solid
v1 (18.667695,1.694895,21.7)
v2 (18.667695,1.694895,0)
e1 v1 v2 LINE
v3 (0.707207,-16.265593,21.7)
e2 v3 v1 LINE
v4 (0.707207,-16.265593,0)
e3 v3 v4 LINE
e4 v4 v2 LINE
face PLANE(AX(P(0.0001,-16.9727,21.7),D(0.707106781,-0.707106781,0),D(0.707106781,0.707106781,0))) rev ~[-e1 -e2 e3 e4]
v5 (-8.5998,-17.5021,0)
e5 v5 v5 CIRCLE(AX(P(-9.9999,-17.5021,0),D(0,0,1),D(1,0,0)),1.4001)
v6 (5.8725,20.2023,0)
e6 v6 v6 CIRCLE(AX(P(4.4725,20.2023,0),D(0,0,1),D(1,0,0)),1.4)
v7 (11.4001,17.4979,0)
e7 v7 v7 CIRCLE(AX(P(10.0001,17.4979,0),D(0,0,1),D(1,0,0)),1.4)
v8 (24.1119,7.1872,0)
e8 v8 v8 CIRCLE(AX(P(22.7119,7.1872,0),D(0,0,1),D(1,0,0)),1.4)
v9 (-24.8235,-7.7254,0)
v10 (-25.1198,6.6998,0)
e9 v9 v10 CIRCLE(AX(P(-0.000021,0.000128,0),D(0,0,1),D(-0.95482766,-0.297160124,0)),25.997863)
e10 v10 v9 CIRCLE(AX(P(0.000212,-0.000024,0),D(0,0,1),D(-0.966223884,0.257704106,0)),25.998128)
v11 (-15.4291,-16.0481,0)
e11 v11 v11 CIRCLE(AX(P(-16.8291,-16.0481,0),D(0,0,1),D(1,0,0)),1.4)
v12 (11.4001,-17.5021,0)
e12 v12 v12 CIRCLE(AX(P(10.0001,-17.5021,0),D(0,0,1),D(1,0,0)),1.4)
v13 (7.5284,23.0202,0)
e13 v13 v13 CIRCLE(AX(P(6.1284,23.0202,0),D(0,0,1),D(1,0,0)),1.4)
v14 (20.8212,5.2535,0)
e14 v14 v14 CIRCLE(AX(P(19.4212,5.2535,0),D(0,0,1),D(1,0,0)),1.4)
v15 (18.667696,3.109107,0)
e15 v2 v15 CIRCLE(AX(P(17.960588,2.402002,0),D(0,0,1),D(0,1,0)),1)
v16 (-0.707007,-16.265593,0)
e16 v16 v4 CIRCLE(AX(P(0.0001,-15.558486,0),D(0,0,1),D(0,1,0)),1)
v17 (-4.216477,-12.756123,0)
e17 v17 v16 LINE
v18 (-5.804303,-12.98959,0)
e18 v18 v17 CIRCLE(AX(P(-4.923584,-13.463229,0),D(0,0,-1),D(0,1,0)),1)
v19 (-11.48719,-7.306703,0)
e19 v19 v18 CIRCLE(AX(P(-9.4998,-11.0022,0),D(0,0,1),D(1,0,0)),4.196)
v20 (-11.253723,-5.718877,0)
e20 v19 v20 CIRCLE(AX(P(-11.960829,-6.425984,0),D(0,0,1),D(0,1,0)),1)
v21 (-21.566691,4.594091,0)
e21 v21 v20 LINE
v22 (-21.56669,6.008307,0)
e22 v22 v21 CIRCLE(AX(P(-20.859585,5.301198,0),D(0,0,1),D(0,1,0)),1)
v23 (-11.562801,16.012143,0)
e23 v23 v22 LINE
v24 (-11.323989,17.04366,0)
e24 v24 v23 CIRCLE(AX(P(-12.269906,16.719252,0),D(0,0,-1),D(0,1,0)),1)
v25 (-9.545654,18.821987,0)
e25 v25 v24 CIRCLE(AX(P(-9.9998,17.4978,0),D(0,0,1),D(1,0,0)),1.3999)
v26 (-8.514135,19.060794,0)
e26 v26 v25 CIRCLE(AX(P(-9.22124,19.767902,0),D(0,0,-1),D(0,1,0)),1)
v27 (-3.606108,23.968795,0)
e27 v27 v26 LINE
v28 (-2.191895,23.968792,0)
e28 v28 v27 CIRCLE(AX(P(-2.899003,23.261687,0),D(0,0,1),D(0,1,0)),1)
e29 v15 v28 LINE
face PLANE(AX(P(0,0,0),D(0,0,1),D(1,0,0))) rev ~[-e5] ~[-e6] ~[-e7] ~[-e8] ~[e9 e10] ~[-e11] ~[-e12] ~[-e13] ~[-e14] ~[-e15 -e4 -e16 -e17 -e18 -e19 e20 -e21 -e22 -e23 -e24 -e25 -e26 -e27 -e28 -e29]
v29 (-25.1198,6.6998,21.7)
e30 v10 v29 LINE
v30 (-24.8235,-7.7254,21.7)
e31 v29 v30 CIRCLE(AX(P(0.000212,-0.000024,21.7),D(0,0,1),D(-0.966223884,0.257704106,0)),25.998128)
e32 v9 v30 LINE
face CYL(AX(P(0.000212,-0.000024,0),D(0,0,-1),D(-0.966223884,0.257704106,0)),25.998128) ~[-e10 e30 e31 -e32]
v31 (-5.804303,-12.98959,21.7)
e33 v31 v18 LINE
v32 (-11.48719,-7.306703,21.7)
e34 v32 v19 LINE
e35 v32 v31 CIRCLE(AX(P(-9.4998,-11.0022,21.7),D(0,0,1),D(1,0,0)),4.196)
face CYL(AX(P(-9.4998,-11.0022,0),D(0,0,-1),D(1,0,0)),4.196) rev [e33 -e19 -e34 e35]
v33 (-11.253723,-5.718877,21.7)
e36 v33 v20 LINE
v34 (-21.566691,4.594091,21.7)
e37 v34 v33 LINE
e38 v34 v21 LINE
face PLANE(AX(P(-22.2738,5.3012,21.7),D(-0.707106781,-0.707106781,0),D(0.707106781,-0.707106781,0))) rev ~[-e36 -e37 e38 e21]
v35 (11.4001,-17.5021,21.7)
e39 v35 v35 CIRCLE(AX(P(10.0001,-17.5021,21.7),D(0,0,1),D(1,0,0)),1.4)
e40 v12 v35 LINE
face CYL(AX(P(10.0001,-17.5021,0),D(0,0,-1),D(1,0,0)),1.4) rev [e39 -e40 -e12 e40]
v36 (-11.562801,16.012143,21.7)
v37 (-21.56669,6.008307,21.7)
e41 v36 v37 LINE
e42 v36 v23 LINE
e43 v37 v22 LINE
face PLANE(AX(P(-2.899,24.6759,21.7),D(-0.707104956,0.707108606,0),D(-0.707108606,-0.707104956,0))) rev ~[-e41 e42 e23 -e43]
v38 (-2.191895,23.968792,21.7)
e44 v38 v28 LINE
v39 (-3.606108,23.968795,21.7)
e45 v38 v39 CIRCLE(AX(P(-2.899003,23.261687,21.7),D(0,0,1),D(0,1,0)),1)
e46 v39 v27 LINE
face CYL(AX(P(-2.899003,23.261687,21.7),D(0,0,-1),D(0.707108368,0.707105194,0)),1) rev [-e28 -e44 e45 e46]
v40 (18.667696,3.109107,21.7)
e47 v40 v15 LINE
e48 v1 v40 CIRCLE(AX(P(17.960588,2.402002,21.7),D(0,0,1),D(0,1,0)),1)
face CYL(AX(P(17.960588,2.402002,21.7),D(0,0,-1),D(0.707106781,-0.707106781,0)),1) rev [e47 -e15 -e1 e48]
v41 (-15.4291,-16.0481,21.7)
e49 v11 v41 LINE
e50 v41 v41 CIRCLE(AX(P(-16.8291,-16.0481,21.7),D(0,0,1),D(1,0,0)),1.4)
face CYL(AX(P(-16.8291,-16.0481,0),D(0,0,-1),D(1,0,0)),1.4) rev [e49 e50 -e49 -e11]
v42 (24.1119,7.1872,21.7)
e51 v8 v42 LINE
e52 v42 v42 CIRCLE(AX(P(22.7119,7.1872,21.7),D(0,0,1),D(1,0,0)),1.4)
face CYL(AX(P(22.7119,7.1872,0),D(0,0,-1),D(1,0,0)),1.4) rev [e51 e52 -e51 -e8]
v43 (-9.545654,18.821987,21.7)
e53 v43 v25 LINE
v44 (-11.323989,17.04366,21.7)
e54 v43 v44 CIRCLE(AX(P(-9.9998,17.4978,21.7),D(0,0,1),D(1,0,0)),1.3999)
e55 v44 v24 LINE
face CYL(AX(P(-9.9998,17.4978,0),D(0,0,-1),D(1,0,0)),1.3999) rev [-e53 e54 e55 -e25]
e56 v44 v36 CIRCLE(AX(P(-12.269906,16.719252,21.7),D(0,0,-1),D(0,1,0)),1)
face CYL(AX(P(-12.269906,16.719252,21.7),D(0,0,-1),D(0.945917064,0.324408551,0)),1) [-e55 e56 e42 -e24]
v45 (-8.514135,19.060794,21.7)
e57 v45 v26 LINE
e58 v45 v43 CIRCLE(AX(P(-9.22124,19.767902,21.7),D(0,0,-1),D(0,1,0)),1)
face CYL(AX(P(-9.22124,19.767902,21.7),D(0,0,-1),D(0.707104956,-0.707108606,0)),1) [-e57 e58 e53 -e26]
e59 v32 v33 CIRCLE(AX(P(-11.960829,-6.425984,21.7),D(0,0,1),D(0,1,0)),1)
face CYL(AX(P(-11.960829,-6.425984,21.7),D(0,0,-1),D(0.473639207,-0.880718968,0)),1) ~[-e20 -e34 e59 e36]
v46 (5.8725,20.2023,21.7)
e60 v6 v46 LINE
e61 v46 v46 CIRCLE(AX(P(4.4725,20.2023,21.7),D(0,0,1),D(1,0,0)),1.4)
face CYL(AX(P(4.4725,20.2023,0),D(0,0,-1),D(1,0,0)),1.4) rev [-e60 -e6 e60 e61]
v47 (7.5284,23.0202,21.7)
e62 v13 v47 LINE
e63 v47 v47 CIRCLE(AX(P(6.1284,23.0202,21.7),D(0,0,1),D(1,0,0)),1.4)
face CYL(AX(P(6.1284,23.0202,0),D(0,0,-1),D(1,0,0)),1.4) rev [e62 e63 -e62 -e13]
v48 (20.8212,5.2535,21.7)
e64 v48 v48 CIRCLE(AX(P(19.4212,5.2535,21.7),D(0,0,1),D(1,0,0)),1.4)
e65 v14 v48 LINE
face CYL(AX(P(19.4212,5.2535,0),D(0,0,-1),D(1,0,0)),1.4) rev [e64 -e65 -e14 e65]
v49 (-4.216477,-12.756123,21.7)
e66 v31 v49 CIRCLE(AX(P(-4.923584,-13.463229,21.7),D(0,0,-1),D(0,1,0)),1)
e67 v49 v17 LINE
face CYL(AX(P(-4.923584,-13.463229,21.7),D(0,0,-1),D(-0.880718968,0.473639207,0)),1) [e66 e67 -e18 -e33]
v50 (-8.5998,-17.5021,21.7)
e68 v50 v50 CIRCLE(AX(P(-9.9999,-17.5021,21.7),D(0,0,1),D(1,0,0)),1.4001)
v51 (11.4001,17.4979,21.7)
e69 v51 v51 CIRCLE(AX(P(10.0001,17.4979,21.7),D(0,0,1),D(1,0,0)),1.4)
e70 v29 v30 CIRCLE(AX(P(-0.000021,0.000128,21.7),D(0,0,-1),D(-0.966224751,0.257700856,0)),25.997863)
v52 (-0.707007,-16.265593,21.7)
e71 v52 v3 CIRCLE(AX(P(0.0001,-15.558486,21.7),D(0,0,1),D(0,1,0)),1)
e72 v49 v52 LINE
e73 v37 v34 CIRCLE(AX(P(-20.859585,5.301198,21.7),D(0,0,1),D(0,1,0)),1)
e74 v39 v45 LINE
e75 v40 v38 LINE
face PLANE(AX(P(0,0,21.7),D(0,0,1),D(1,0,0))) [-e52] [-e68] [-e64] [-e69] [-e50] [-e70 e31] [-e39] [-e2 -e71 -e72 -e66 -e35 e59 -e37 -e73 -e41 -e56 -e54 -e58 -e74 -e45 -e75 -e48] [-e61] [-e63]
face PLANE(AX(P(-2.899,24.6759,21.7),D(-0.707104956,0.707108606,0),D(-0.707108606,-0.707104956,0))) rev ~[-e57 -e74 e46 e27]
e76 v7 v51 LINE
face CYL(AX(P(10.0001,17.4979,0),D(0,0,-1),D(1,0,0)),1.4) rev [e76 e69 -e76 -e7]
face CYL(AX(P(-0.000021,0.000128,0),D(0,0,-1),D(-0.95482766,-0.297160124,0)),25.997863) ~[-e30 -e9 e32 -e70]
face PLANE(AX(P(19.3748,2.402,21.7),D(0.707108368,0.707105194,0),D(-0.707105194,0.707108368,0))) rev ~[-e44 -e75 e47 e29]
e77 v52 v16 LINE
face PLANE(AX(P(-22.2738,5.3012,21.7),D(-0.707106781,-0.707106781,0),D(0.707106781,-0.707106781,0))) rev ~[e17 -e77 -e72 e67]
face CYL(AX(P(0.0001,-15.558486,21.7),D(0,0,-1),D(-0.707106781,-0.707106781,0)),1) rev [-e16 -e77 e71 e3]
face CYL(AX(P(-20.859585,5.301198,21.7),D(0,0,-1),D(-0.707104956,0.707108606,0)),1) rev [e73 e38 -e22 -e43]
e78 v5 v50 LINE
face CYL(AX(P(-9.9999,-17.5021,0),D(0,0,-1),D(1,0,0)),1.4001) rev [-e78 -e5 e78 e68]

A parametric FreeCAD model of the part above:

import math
import FreeCAD as App
import Part
import Sketcher
Q = App.Units.Quantity


def edges_at(feature, points):
    """Names of the edges that pass closest to the given points."""
    edges = feature.Shape.Edges
    near = lambda p: min(range(len(edges)), key=lambda i: edges[i].distToShape(Part.Vertex(*p))[0])
    return sorted({f"Edge{near(p) + 1}" for p in points})

doc = App.newDocument("Part")
params = doc.addObject("Spreadsheet::Sheet", "Params")
for row, (alias, value) in enumerate([
    ("sketch1_diameter", "2.8 mm"),
    ("pad1_length", "21.7 mm"),
    ("sketch2_length", "31.5 mm"),
    ("sketch2_length2", "27.4 mm"),
    ("fillet_radius", "1 mm"),
], start=1):
    params.set(f"A{row}", alias)
    params.set(f"B{row}", "=" + value)
    params.setAlias(f"B{row}", alias)

body = doc.addObject("PartDesign::Body", "Body")

# Sketch on XY plane
sketch1 = body.newObject("Sketcher::SketchObject", "Sketch")
sketch1.AttachmentSupport = (doc.getObject("XY_Plane"), [""])
sketch1.MapMode = "FlatFace"
sketch1.addGeometry([
    Part.ArcOfCircle(Part.Circle(App.Vector(0, 0, 0), App.Vector(0, 0, 1), 25.997917), math.radians(165.066056), math.radians(197.286829)),  # 0
    Part.ArcOfCircle(Part.Circle(App.Vector(0, 0, 0), App.Vector(0, 0, 1), 25.997845), math.radians(-162.713171), math.radians(165.066056)),  # 1
    Part.Circle(App.Vector(-16.8291, -16.0481, 0), App.Vector(0, 0, 1), 1.4),  # 2
    Part.Circle(App.Vector(-9.9999, -17.5021, 0), App.Vector(0, 0, 1), 1.4001),  # 3
    Part.Circle(App.Vector(-9.4998, -11.0022, 0), App.Vector(0, 0, 1), 4.196),  # 4
    Part.Circle(App.Vector(10.0001, -17.5021, 0), App.Vector(0, 0, 1), 1.4),  # 5
    Part.Circle(App.Vector(0.0001, -0.0022, 0), App.Vector(0, 0, 1), 6.7754),  # 6
    Part.Circle(App.Vector(-9.9998, 17.4978, 0), App.Vector(0, 0, 1), 1.3999),  # 7
    Part.Circle(App.Vector(19.4212, 5.2535, 0), App.Vector(0, 0, 1), 1.4),  # 8
    Part.Circle(App.Vector(22.7119, 7.1872, 0), App.Vector(0, 0, 1), 1.4),  # 9
    Part.Circle(App.Vector(10.0001, 17.4979, 0), App.Vector(0, 0, 1), 1.4),  # 10
    Part.Circle(App.Vector(4.4725, 20.2023, 0), App.Vector(0, 0, 1), 1.4),  # 11
    Part.Circle(App.Vector(6.1284, 23.0202, 0), App.Vector(0, 0, 1), 1.4),  # 12
], False)
sketch1.addConstraint([
    Sketcher.Constraint("Tangent", 0, 1, 1, 2),
    Sketcher.Constraint("Coincident", 1, 1, 0, 2),
    Sketcher.Constraint("Coincident", 0, 3, -1, 1),
    Sketcher.Constraint("Equal", 2, 3),
    Sketcher.Constraint("Equal", 3, 5),
    Sketcher.Constraint("Equal", 5, 7),
    Sketcher.Constraint("Equal", 7, 8),
    Sketcher.Constraint("Equal", 8, 9),
    Sketcher.Constraint("Equal", 9, 10),
    Sketcher.Constraint("Equal", 10, 11),
    Sketcher.Constraint("Equal", 11, 12),
    Sketcher.Constraint("Symmetric", 3, 3, 5, 3, -2),
    Sketcher.Constraint("Symmetric", 7, 3, 10, 3, -2),
    Sketcher.Constraint("PointOnObject", 6, 3, -2),
    Sketcher.Constraint("Vertical", 3, 3, 7, 3),
    Sketcher.Constraint("Diameter", 2, Q("2.8 mm")),
    Sketcher.Constraint("Diameter", 4, Q("8.392 mm")),
    Sketcher.Constraint("DistanceX", 3, 3, -1, 1, Q("10 mm")),
    Sketcher.Constraint("Radius", 0, Q("25.998 mm")),
    Sketcher.Constraint("DistanceY", 4, 3, 6, 3, Q("11 mm")),
    Sketcher.Constraint("Diameter", 6, Q("13.5508 mm")),
    Sketcher.Constraint("DistanceX", 3, 3, 4, 3, Q("0.5 mm")),
    Sketcher.Constraint("DistanceY", 3, 3, 4, 3, Q("6.5 mm")),
    Sketcher.Constraint("DistanceY", 6, 3, 7, 3, Q("17.5 mm")),
    Sketcher.Constraint("DistanceX", 0, 1, 7, 3, Q("15.12 mm")),
    Sketcher.Constraint("DistanceX", 2, 3, -1, 1, Q("16.829 mm")),
    Sketcher.Constraint("DistanceY", 2, 3, -1, 1, Q("16.048 mm")),
    Sketcher.Constraint("DistanceY", 3, 3, -1, 1, Q("17.502 mm")),
    Sketcher.Constraint("DistanceX", -1, 1, 9, 3, Q("22.712 mm")),
    Sketcher.Constraint("DistanceX", 6, 3, 8, 3, Q("19.421 mm")),
    Sketcher.Constraint("DistanceX", 11, 3, 12, 3, Q("1.656 mm")),
    Sketcher.Constraint("DistanceY", 11, 3, 12, 3, Q("2.818 mm")),
    Sketcher.Constraint("DistanceY", 9, 3, 12, 3, Q("15.833 mm")),
    Sketcher.Constraint("DistanceY", -1, 1, 8, 3, Q("5.2535 mm")),
    Sketcher.Constraint("DistanceY", -1, 1, 9, 3, Q("7.1872 mm")),
    Sketcher.Constraint("DistanceX", -1, 1, 11, 3, Q("4.4725 mm")),
    Sketcher.Constraint("DistanceX", 1, 1, -1, 1, Q("24.8235 mm")),
])
sketch1.setExpression("Constraints[15]", "Params.sketch1_diameter")
pad1 = body.newObject("PartDesign::Pad", "Pad")
pad1.Profile = sketch1
pad1.setExpression("Length", "Params.pad1_length")

# Sketch on XY plane
sketch2 = body.newObject("Sketcher::SketchObject", "Sketch001")
sketch2.AttachmentSupport = (doc.getObject("XY_Plane"), [""])
sketch2.MapMode = "FlatFace"
sketch2.AttachmentOffset = App.Placement(App.Vector(0, 0, 21.7), App.Rotation())
sketch2.addGeometry([
    Part.LineSegment(App.Vector(19.3748, 2.402, 0), App.Vector(-2.899, 24.6759, 0)),
    Part.LineSegment(App.Vector(-2.899, 24.6759, 0), App.Vector(-22.2738, 5.3012, 0)),
    Part.LineSegment(App.Vector(-22.2738, 5.3012, 0), App.Vector(0.0001, -16.9727, 0)),
    Part.LineSegment(App.Vector(0.0001, -16.9727, 0), App.Vector(19.3748, 2.402, 0)),
], False)
sketch2.addConstraint([
    Sketcher.Constraint("Coincident", 0, 2, 1, 1),
    Sketcher.Constraint("Coincident", 1, 2, 2, 1),
    Sketcher.Constraint("Coincident", 2, 2, 3, 1),
    Sketcher.Constraint("Coincident", 3, 2, 0, 1),
    Sketcher.Constraint("PointOnObject", 2, 2, -2),
    Sketcher.Constraint("Perpendicular", 0, 1),
    Sketcher.Constraint("Perpendicular", 1, 2),
    Sketcher.Constraint("Perpendicular", 2, 3),
    Sketcher.Constraint("Angle", 0, Q("134.9999 deg")),
    Sketcher.Constraint("Distance", 0, Q("31.5 mm")),
    Sketcher.Constraint("Distance", 1, Q("27.4 mm")),
    Sketcher.Constraint("DistanceY", -1, 1, 0, 2, Q("24.676 mm")),
])
sketch2.setExpression("Constraints[9]", "Params.sketch2_length")
sketch2.setExpression("Constraints[10]", "Params.sketch2_length2")
pocket1 = body.newObject("PartDesign::Pocket", "Pocket")
pocket1.Profile = sketch2
pocket1.Type = "ThroughAll"
doc.recompute()

fillet = body.newObject("PartDesign::Fillet", "Fillet")
fillet.Base = (pocket1, edges_at(pocket1, [
    (-2.899, 24.676, 10.85),
    (19.375, 2.402, 10.85),
    (0, -16.973, 10.85),
    (-22.274, 5.301, 10.85),
    (-10.12, -6.852, 10.85),
    (-5.35, -11.623, 10.85),
    (-11.028, 16.547, 10.85),
    (-9.049, 18.526, 10.85),
]))
fillet.setExpression("Radius", "Params.fillet_radius")

doc.recompute()
